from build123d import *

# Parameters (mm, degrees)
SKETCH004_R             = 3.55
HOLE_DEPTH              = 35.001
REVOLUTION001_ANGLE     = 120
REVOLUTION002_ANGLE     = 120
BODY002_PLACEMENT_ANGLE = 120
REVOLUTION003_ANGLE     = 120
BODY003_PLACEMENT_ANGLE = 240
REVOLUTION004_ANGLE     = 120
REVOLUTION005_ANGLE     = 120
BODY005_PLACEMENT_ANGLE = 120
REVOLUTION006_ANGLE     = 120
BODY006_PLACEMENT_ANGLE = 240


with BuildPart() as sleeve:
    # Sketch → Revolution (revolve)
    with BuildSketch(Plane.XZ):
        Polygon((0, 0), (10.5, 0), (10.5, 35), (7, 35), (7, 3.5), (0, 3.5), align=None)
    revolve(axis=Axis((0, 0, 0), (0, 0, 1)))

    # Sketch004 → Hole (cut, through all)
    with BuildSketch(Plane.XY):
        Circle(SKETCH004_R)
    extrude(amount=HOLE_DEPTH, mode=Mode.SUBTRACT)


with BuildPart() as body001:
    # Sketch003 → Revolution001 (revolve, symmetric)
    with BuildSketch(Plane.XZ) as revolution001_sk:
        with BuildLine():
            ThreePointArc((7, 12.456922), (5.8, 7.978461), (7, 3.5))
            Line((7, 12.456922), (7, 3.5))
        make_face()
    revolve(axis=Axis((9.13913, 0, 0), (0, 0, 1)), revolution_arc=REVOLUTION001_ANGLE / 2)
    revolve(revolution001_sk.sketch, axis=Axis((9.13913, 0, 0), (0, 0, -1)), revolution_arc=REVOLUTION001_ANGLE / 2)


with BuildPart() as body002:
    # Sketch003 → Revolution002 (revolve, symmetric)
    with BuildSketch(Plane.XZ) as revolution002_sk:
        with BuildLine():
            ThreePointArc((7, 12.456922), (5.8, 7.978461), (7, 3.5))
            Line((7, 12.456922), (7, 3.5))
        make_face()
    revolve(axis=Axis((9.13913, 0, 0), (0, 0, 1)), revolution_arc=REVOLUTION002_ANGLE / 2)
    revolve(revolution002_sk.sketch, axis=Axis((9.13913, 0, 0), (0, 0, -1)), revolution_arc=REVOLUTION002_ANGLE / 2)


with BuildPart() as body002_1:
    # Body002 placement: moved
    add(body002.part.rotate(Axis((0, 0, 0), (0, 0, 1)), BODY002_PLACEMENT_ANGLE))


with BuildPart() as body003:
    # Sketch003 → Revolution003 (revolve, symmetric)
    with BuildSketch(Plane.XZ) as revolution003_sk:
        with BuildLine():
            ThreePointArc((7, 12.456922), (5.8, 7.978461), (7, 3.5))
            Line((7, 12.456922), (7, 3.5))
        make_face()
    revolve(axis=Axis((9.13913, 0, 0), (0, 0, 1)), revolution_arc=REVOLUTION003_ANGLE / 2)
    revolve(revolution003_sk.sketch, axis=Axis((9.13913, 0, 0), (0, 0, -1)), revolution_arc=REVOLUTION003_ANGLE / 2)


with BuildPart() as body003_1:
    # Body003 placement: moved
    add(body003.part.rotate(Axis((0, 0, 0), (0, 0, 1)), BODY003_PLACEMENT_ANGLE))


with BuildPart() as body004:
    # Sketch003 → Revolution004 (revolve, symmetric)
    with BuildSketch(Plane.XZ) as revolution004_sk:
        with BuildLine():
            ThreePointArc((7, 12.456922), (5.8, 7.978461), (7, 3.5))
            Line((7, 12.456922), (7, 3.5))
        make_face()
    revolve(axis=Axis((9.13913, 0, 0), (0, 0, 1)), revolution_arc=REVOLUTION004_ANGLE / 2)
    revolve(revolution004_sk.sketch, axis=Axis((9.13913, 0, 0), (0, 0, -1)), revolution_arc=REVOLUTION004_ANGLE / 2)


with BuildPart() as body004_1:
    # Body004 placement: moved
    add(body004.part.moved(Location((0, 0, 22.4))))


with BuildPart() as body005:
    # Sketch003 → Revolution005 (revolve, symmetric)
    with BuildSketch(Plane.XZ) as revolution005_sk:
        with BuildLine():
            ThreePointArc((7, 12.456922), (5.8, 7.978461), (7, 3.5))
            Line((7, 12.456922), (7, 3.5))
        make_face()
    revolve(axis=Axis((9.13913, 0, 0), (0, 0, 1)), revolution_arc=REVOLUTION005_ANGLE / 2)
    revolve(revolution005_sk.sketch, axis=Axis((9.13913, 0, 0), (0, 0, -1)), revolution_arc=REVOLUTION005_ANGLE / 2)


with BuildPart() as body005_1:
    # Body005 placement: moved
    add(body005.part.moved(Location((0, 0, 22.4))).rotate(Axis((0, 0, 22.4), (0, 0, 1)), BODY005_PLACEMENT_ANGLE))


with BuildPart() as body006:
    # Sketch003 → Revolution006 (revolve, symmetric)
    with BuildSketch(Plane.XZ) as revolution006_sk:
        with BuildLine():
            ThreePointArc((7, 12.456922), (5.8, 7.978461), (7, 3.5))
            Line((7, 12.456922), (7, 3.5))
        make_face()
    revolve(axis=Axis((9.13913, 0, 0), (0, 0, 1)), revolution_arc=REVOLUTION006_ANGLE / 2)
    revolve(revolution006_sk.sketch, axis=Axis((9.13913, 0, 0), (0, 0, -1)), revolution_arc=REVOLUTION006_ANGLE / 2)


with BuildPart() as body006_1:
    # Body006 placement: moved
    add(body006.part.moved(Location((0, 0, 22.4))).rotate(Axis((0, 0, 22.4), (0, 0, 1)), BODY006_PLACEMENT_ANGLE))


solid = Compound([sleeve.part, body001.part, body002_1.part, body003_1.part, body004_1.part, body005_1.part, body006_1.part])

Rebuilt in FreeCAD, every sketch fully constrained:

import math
import FreeCAD as App
import Part
import Sketcher
from FreeCAD import Vector


def add_polygon(sketch, points):
    """Adds a closed chain of lines whose ends are joined by coincident constraints."""
    first, n = sketch.GeometryCount, len(points)
    for a, b in zip(points, points[1:] + points[:1]):
        sketch.addGeometry(Part.LineSegment(App.Vector(*a, 0), App.Vector(*b, 0)), False)
    for i in range(n):
        sketch.addConstraint(Sketcher.Constraint("Coincident", first + i, 2, first + (i + 1) % n, 1))

doc = App.newDocument("Part")
body = doc.addObject("PartDesign::Body", "Body")

sketch1 = body.newObject("Sketcher::SketchObject", "Sketch")
sketch1.AttachmentSupport = (doc.getObject("XZ_Plane"), [""])
sketch1.MapMode = "FlatFace"
add_polygon(sketch1, [(0, 0), (10.5, 0), (10.5, 35), (7, 35), (7, 3.5), (0, 3.5)])
sketch1.addConstraint([
    Sketcher.Constraint("Horizontal", 0),
    Sketcher.Constraint("Vertical", 1),
    Sketcher.Constraint("Horizontal", 2),
    Sketcher.Constraint("Vertical", 3),
    Sketcher.Constraint("Horizontal", 4),
    Sketcher.Constraint("Vertical", 5),
    Sketcher.Constraint("Coincident", 5, 2, -1, 1),
    Sketcher.Constraint("Equal", 2, 5),
    Sketcher.Constraint("DistanceX", 4, 2, 4, 1, 7.0),
    Sketcher.Constraint("DistanceY", 1, 1, 1, 2, 35.0),
    Sketcher.Constraint("DistanceX", 0, 1, 0, 2, 10.5),
])
revolution = body.newObject("PartDesign::Revolution", "Revolution")
revolution.Profile = sketch1
revolution.ReferenceAxis = (sketch1, ["V_Axis"])
revolution.Angle = 360

sketch2 = body.newObject("Sketcher::SketchObject", "Sketch001")
sketch2.AttachmentSupport = (doc.getObject("XY_Plane"), [""])
sketch2.MapMode = "FlatFace"
sketch2.addGeometry(Part.Circle(Vector(0, 0, 0), Vector(0, 0, 1), 3.55), False)
sketch2.addConstraint([
    Sketcher.Constraint("Coincident", 0, 3, -1, 1),
    Sketcher.Constraint("Diameter", 0, 7.1),
])
pocket1 = body.newObject("PartDesign::Pocket", "Pocket")
pocket1.Profile = sketch2
pocket1.Type = "ThroughAll"
pocket1.Reversed = True
body2 = doc.addObject("PartDesign::Body", "Body001")

sketch3 = body2.newObject("Sketcher::SketchObject", "Sketch002")
sketch3.AttachmentSupport = (doc.getObject("XZ_Plane001"), [""])
sketch3.MapMode = "FlatFace"
sketch3.addGeometry([
    Part.ArcOfCircle(Part.Circle(Vector(14.756922, 7.978461, 0), Vector(0, 0, 1), 8.956922), math.radians(150), math.radians(210)),
    Part.LineSegment(Vector(7, 3.5, 0), Vector(7, 12.456922, 0)),
], False)
sketch3.addGeometry(Part.LineSegment(Vector(9.13913, 3.5, 0), Vector(9.13913, 12.456922, 0)), True)
sketch3.addConstraint([
    Sketcher.Constraint("Coincident", 0, 1, 1, 2),
    Sketcher.Constraint("Coincident", 1, 1, 0, 2),
    Sketcher.Constraint("Vertical", 1),
    Sketcher.Constraint("Vertical", 2),
    Sketcher.Constraint("Horizontal", 1, 1, 2, 1),
    Sketcher.Constraint("Horizontal", 0, 1, 2, 2),
    Sketcher.Constraint("DistanceX", -1, 1, 0, 1, 7.0),
    Sketcher.Constraint("DistanceY", -1, 1, 1, 1, 3.5),
    Sketcher.Constraint("Radius", 0, 8.956922),
    Sketcher.Constraint("DistanceY", 1, 1, 1, 2, 8.956922),
    Sketcher.Constraint("DistanceX", -1, 1, 2, 1, 9.13913),
])
revolution2 = body2.newObject("PartDesign::Revolution", "Revolution001")
revolution2.Profile = sketch3
revolution2.ReferenceAxis = (sketch3, ["Axis0"])
revolution2.Angle = 60

sketch4 = body2.newObject("Sketcher::SketchObject", "Sketch003")
sketch4.AttachmentSupport = (doc.getObject("XZ_Plane001"), [""])
sketch4.MapMode = "FlatFace"
sketch4.addGeometry([
    Part.ArcOfCircle(Part.Circle(Vector(14.756922, 7.978461, 0), Vector(0, 0, 1), 8.956922), math.radians(150), math.radians(210)),
    Part.LineSegment(Vector(7, 3.5, 0), Vector(7, 12.456922, 0)),
], False)
sketch4.addGeometry(Part.LineSegment(Vector(9.13913, 12.456922, 0), Vector(9.13913, 3.5, 0)), True)
sketch4.addConstraint([
    Sketcher.Constraint("Coincident", 0, 1, 1, 2),
    Sketcher.Constraint("Coincident", 1, 1, 0, 2),
    Sketcher.Constraint("Vertical", 1),
    Sketcher.Constraint("Vertical", 2),
    Sketcher.Constraint("Horizontal", 0, 1, 2, 1),
    Sketcher.Constraint("Horizontal", 1, 1, 2, 2),
    Sketcher.Constraint("DistanceX", -1, 1, 0, 1, 7.0),
    Sketcher.Constraint("DistanceY", -1, 1, 1, 1, 3.5),
    Sketcher.Constraint("Radius", 0, 8.956922),
    Sketcher.Constraint("DistanceY", 1, 1, 1, 2, 8.956922),
    Sketcher.Constraint("DistanceX", -1, 1, 2, 1, 9.13913),
])
revolution3 = body2.newObject("PartDesign::Revolution", "Revolution002")
revolution3.Profile = sketch4
revolution3.ReferenceAxis = (sketch4, ["Axis0"])
revolution3.Angle = 60
body3 = doc.addObject("PartDesign::Body", "Body002")

sketch5 = body3.newObject("Sketcher::SketchObject", "Sketch004")
sketch5.AttachmentSupport = (doc.getObject("XZ_Plane002"), [""])
sketch5.MapMode = "FlatFace"
sketch5.addGeometry([
    Part.ArcOfCircle(Part.Circle(Vector(14.756922, 7.978461, 0), Vector(0, 0, 1), 8.956922), math.radians(150), math.radians(210)),
    Part.LineSegment(Vector(7, 3.5, 0), Vector(7, 12.456922, 0)),
], False)
sketch5.addGeometry(Part.LineSegment(Vector(9.13913, 3.5, 0), Vector(9.13913, 12.456922, 0)), True)
sketch5.addConstraint([
    Sketcher.Constraint("Coincident", 0, 1, 1, 2),
    Sketcher.Constraint("Coincident", 1, 1, 0, 2),
    Sketcher.Constraint("Vertical", 1),
    Sketcher.Constraint("Vertical", 2),
    Sketcher.Constraint("Horizontal", 1, 1, 2, 1),
    Sketcher.Constraint("Horizontal", 0, 1, 2, 2),
    Sketcher.Constraint("DistanceX", -1, 1, 0, 1, 7.0),
    Sketcher.Constraint("DistanceY", -1, 1, 1, 1, 3.5),
    Sketcher.Constraint("Radius", 0, 8.956922),
    Sketcher.Constraint("DistanceY", 1, 1, 1, 2, 8.956922),
    Sketcher.Constraint("DistanceX", -1, 1, 2, 1, 9.13913),
])
revolution4 = body3.newObject("PartDesign::Revolution", "Revolution003")
revolution4.Profile = sketch5
revolution4.ReferenceAxis = (sketch5, ["Axis0"])
revolution4.Angle = 60

sketch6 = body3.newObject("Sketcher::SketchObject", "Sketch005")
sketch6.AttachmentSupport = (doc.getObject("XZ_Plane002"), [""])
sketch6.MapMode = "FlatFace"
sketch6.addGeometry([
    Part.ArcOfCircle(Part.Circle(Vector(14.756922, 7.978461, 0), Vector(0, 0, 1), 8.956922), math.radians(150), math.radians(210)),
    Part.LineSegment(Vector(7, 3.5, 0), Vector(7, 12.456922, 0)),
], False)
sketch6.addGeometry(Part.LineSegment(Vector(9.13913, 12.456922, 0), Vector(9.13913, 3.5, 0)), True)
sketch6.addConstraint([
    Sketcher.Constraint("Coincident", 0, 1, 1, 2),
    Sketcher.Constraint("Coincident", 1, 1, 0, 2),
    Sketcher.Constraint("Vertical", 1),
    Sketcher.Constraint("Vertical", 2),
    Sketcher.Constraint("Horizontal", 0, 1, 2, 1),
    Sketcher.Constraint("Horizontal", 1, 1, 2, 2),
    Sketcher.Constraint("DistanceX", -1, 1, 0, 1, 7.0),
    Sketcher.Constraint("DistanceY", -1, 1, 1, 1, 3.5),
    Sketcher.Constraint("Radius", 0, 8.956922),
    Sketcher.Constraint("DistanceY", 1, 1, 1, 2, 8.956922),
    Sketcher.Constraint("DistanceX", -1, 1, 2, 1, 9.13913),
])
revolution5 = body3.newObject("PartDesign::Revolution", "Revolution004")
revolution5.Profile = sketch6
revolution5.ReferenceAxis = (sketch6, ["Axis0"])
revolution5.Angle = 60
body4 = doc.addObject("PartDesign::Body", "Body003")
doc.recompute()

body3.Placement = App.Placement(Vector(0, 0, 0), App.Rotation(Vector(0, 0, 1), 120))
boolean = body4.newObject("PartDesign::Boolean", "Boolean")
boolean.Type = "Fuse"
boolean.addObjects([body3])
body5 = doc.addObject("PartDesign::Body", "Body004")

sketch7 = body5.newObject("Sketcher::SketchObject", "Sketch006")
sketch7.AttachmentSupport = (doc.getObject("XZ_Plane004"), [""])
sketch7.MapMode = "FlatFace"
sketch7.addGeometry([
    Part.ArcOfCircle(Part.Circle(Vector(14.756922, 7.978461, 0), Vector(0, 0, 1), 8.956922), math.radians(150), math.radians(210)),
    Part.LineSegment(Vector(7, 3.5, 0), Vector(7, 12.456922, 0)),
], False)
sketch7.addGeometry(Part.LineSegment(Vector(9.13913, 3.5, 0), Vector(9.13913, 12.456922, 0)), True)
sketch7.addConstraint([
    Sketcher.Constraint("Coincident", 0, 1, 1, 2),
    Sketcher.Constraint("Coincident", 1, 1, 0, 2),
    Sketcher.Constraint("Vertical", 1),
    Sketcher.Constraint("Vertical", 2),
    Sketcher.Constraint("Horizontal", 1, 1, 2, 1),
    Sketcher.Constraint("Horizontal", 0, 1, 2, 2),
    Sketcher.Constraint("DistanceX", -1, 1, 0, 1, 7.0),
    Sketcher.Constraint("DistanceY", -1, 1, 1, 1, 3.5),
    Sketcher.Constraint("Radius", 0, 8.956922),
    Sketcher.Constraint("DistanceY", 1, 1, 1, 2, 8.956922),
    Sketcher.Constraint("DistanceX", -1, 1, 2, 1, 9.13913),
])
revolution6 = body5.newObject("PartDesign::Revolution", "Revolution005")
revolution6.Profile = sketch7
revolution6.ReferenceAxis = (sketch7, ["Axis0"])
revolution6.Angle = 60

sketch8 = body5.newObject("Sketcher::SketchObject", "Sketch007")
sketch8.AttachmentSupport = (doc.getObject("XZ_Plane004"), [""])
sketch8.MapMode = "FlatFace"
sketch8.addGeometry([
    Part.ArcOfCircle(Part.Circle(Vector(14.756922, 7.978461, 0), Vector(0, 0, 1), 8.956922), math.radians(150), math.radians(210)),
    Part.LineSegment(Vector(7, 3.5, 0), Vector(7, 12.456922, 0)),
], False)
sketch8.addGeometry(Part.LineSegment(Vector(9.13913, 12.456922, 0), Vector(9.13913, 3.5, 0)), True)
sketch8.addConstraint([
    Sketcher.Constraint("Coincident", 0, 1, 1, 2),
    Sketcher.Constraint("Coincident", 1, 1, 0, 2),
    Sketcher.Constraint("Vertical", 1),
    Sketcher.Constraint("Vertical", 2),
    Sketcher.Constraint("Horizontal", 0, 1, 2, 1),
    Sketcher.Constraint("Horizontal", 1, 1, 2, 2),
    Sketcher.Constraint("DistanceX", -1, 1, 0, 1, 7.0),
    Sketcher.Constraint("DistanceY", -1, 1, 1, 1, 3.5),
    Sketcher.Constraint("Radius", 0, 8.956922),
    Sketcher.Constraint("DistanceY", 1, 1, 1, 2, 8.956922),
    Sketcher.Constraint("DistanceX", -1, 1, 2, 1, 9.13913),
])
revolution7 = body5.newObject("PartDesign::Revolution", "Revolution006")
revolution7.Profile = sketch8
revolution7.ReferenceAxis = (sketch8, ["Axis0"])
revolution7.Angle = 60
body6 = doc.addObject("PartDesign::Body", "Body005")
doc.recompute()

body5.Placement = App.Placement(Vector(0, 0, 0), App.Rotation(Vector(0, 0, 1), 240))
boolean2 = body6.newObject("PartDesign::Boolean", "Boolean001")
boolean2.Type = "Fuse"
boolean2.addObjects([body5])
body7 = doc.addObject("PartDesign::Body", "Body006")

sketch9 = body7.newObject("Sketcher::SketchObject", "Sketch008")
sketch9.AttachmentSupport = (doc.getObject("XZ_Plane006"), [""])
sketch9.MapMode = "FlatFace"
sketch9.addGeometry([
    Part.ArcOfCircle(Part.Circle(Vector(14.756922, 7.978461, 0), Vector(0, 0, 1), 8.956922), math.radians(150), math.radians(210)),
    Part.LineSegment(Vector(7, 3.5, 0), Vector(7, 12.456922, 0)),
], False)
sketch9.addGeometry(Part.LineSegment(Vector(9.13913, 3.5, 0), Vector(9.13913, 12.456922, 0)), True)
sketch9.addConstraint([
    Sketcher.Constraint("Coincident", 0, 1, 1, 2),
    Sketcher.Constraint("Coincident", 1, 1, 0, 2),
    Sketcher.Constraint("Vertical", 1),
    Sketcher.Constraint("Vertical", 2),
    Sketcher.Constraint("Horizontal", 1, 1, 2, 1),
    Sketcher.Constraint("Horizontal", 0, 1, 2, 2),
    Sketcher.Constraint("DistanceX", -1, 1, 0, 1, 7.0),
    Sketcher.Constraint("DistanceY", -1, 1, 1, 1, 3.5),
    Sketcher.Constraint("Radius", 0, 8.956922),
    Sketcher.Constraint("DistanceY", 1, 1, 1, 2, 8.956922),
    Sketcher.Constraint("DistanceX", -1, 1, 2, 1, 9.13913),
])
revolution8 = body7.newObject("PartDesign::Revolution", "Revolution007")
revolution8.Profile = sketch9
revolution8.ReferenceAxis = (sketch9, ["Axis0"])
revolution8.Angle = 60

sketch10 = body7.newObject("Sketcher::SketchObject", "Sketch009")
sketch10.AttachmentSupport = (doc.getObject("XZ_Plane006"), [""])
sketch10.MapMode = "FlatFace"
sketch10.addGeometry([
    Part.ArcOfCircle(Part.Circle(Vector(14.756922, 7.978461, 0), Vector(0, 0, 1), 8.956922), math.radians(150), math.radians(210)),
    Part.LineSegment(Vector(7, 3.5, 0), Vector(7, 12.456922, 0)),
], False)
sketch10.addGeometry(Part.LineSegment(Vector(9.13913, 12.456922, 0), Vector(9.13913, 3.5, 0)), True)
sketch10.addConstraint([
    Sketcher.Constraint("Coincident", 0, 1, 1, 2),
    Sketcher.Constraint("Coincident", 1, 1, 0, 2),
    Sketcher.Constraint("Vertical", 1),
    Sketcher.Constraint("Vertical", 2),
    Sketcher.Constraint("Horizontal", 0, 1, 2, 1),
    Sketcher.Constraint("Horizontal", 1, 1, 2, 2),
    Sketcher.Constraint("DistanceX", -1, 1, 0, 1, 7.0),
    Sketcher.Constraint("DistanceY", -1, 1, 1, 1, 3.5),
    Sketcher.Constraint("Radius", 0, 8.956922),
    Sketcher.Constraint("DistanceY", 1, 1, 1, 2, 8.956922),
    Sketcher.Constraint("DistanceX", -1, 1, 2, 1, 9.13913),
])
revolution9 = body7.newObject("PartDesign::Revolution", "Revolution008")
revolution9.Profile = sketch10
revolution9.ReferenceAxis = (sketch10, ["Axis0"])
revolution9.Angle = 60
body8 = doc.addObject("PartDesign::Body", "Body007")
doc.recompute()

body7.Placement = App.Placement(Vector(0, 0, 22.4), App.Rotation(Vector(0, 0, 1), 0))
boolean3 = body8.newObject("PartDesign::Boolean", "Boolean002")
boolean3.Type = "Fuse"
boolean3.addObjects([body7])
body9 = doc.addObject("PartDesign::Body", "Body008")

sketch11 = body9.newObject("Sketcher::SketchObject", "Sketch010")
sketch11.AttachmentSupport = (doc.getObject("XZ_Plane008"), [""])
sketch11.MapMode = "FlatFace"
sketch11.addGeometry([
    Part.ArcOfCircle(Part.Circle(Vector(14.756922, 7.978461, 0), Vector(0, 0, 1), 8.956922), math.radians(150), math.radians(210)),
    Part.LineSegment(Vector(7, 3.5, 0), Vector(7, 12.456922, 0)),
], False)
sketch11.addGeometry(Part.LineSegment(Vector(9.13913, 3.5, 0), Vector(9.13913, 12.456922, 0)), True)
sketch11.addConstraint([
    Sketcher.Constraint("Coincident", 0, 1, 1, 2),
    Sketcher.Constraint("Coincident", 1, 1, 0, 2),
    Sketcher.Constraint("Vertical", 1),
    Sketcher.Constraint("Vertical", 2),
    Sketcher.Constraint("Horizontal", 1, 1, 2, 1),
    Sketcher.Constraint("Horizontal", 0, 1, 2, 2),
    Sketcher.Constraint("DistanceX", -1, 1, 0, 1, 7.0),
    Sketcher.Constraint("DistanceY", -1, 1, 1, 1, 3.5),
    Sketcher.Constraint("Radius", 0, 8.956922),
    Sketcher.Constraint("DistanceY", 1, 1, 1, 2, 8.956922),
    Sketcher.Constraint("DistanceX", -1, 1, 2, 1, 9.13913),
])
revolution10 = body9.newObject("PartDesign::Revolution", "Revolution009")
revolution10.Profile = sketch11
revolution10.ReferenceAxis = (sketch11, ["Axis0"])
revolution10.Angle = 60

sketch12 = body9.newObject("Sketcher::SketchObject", "Sketch011")
sketch12.AttachmentSupport = (doc.getObject("XZ_Plane008"), [""])
sketch12.MapMode = "FlatFace"
sketch12.addGeometry([
    Part.ArcOfCircle(Part.Circle(Vector(14.756922, 7.978461, 0), Vector(0, 0, 1), 8.956922), math.radians(150), math.radians(210)),
    Part.LineSegment(Vector(7, 3.5, 0), Vector(7, 12.456922, 0)),
], False)
sketch12.addGeometry(Part.LineSegment(Vector(9.13913, 12.456922, 0), Vector(9.13913, 3.5, 0)), True)
sketch12.addConstraint([
    Sketcher.Constraint("Coincident", 0, 1, 1, 2),
    Sketcher.Constraint("Coincident", 1, 1, 0, 2),
    Sketcher.Constraint("Vertical", 1),
    Sketcher.Constraint("Vertical", 2),
    Sketcher.Constraint("Horizontal", 0, 1, 2, 1),
    Sketcher.Constraint("Horizontal", 1, 1, 2, 2),
    Sketcher.Constraint("DistanceX", -1, 1, 0, 1, 7.0),
    Sketcher.Constraint("DistanceY", -1, 1, 1, 1, 3.5),
    Sketcher.Constraint("Radius", 0, 8.956922),
    Sketcher.Constraint("DistanceY", 1, 1, 1, 2, 8.956922),
    Sketcher.Constraint("DistanceX", -1, 1, 2, 1, 9.13913),
])
revolution11 = body9.newObject("PartDesign::Revolution", "Revolution010")
revolution11.Profile = sketch12
revolution11.ReferenceAxis = (sketch12, ["Axis0"])
revolution11.Angle = 60
body10 = doc.addObject("PartDesign::Body", "Body009")
doc.recompute()

body9.Placement = App.Placement(Vector(0, 0, 22.4), App.Rotation(Vector(0, 0, 1), 120))
boolean4 = body10.newObject("PartDesign::Boolean", "Boolean003")
boolean4.Type = "Fuse"
boolean4.addObjects([body9])
body11 = doc.addObject("PartDesign::Body", "Body010")

sketch13 = body11.newObject("Sketcher::SketchObject", "Sketch012")
sketch13.AttachmentSupport = (doc.getObject("XZ_Plane010"), [""])
sketch13.MapMode = "FlatFace"
sketch13.addGeometry([
    Part.ArcOfCircle(Part.Circle(Vector(14.756922, 7.978461, 0), Vector(0, 0, 1), 8.956922), math.radians(150), math.radians(210)),
    Part.LineSegment(Vector(7, 3.5, 0), Vector(7, 12.456922, 0)),
], False)
sketch13.addGeometry(Part.LineSegment(Vector(9.13913, 3.5, 0), Vector(9.13913, 12.456922, 0)), True)
sketch13.addConstraint([
    Sketcher.Constraint("Coincident", 0, 1, 1, 2),
    Sketcher.Constraint("Coincident", 1, 1, 0, 2),
    Sketcher.Constraint("Vertical", 1),
    Sketcher.Constraint("Vertical", 2),
    Sketcher.Constraint("Horizontal", 1, 1, 2, 1),
    Sketcher.Constraint("Horizontal", 0, 1, 2, 2),
    Sketcher.Constraint("DistanceX", -1, 1, 0, 1, 7.0),
    Sketcher.Constraint("DistanceY", -1, 1, 1, 1, 3.5),
    Sketcher.Constraint("Radius", 0, 8.956922),
    Sketcher.Constraint("DistanceY", 1, 1, 1, 2, 8.956922),
    Sketcher.Constraint("DistanceX", -1, 1, 2, 1, 9.13913),
])
revolution12 = body11.newObject("PartDesign::Revolution", "Revolution011")
revolution12.Profile = sketch13
revolution12.ReferenceAxis = (sketch13, ["Axis0"])
revolution12.Angle = 60

sketch14 = body11.newObject("Sketcher::SketchObject", "Sketch013")
sketch14.AttachmentSupport = (doc.getObject("XZ_Plane010"), [""])
sketch14.MapMode = "FlatFace"
sketch14.addGeometry([
    Part.ArcOfCircle(Part.Circle(Vector(14.756922, 7.978461, 0), Vector(0, 0, 1), 8.956922), math.radians(150), math.radians(210)),
    Part.LineSegment(Vector(7, 3.5, 0), Vector(7, 12.456922, 0)),
], False)
sketch14.addGeometry(Part.LineSegment(Vector(9.13913, 12.456922, 0), Vector(9.13913, 3.5, 0)), True)
sketch14.addConstraint([
    Sketcher.Constraint("Coincident", 0, 1, 1, 2),
    Sketcher.Constraint("Coincident", 1, 1, 0, 2),
    Sketcher.Constraint("Vertical", 1),
    Sketcher.Constraint("Vertical", 2),
    Sketcher.Constraint("Horizontal", 0, 1, 2, 1),
    Sketcher.Constraint("Horizontal", 1, 1, 2, 2),
    Sketcher.Constraint("DistanceX", -1, 1, 0, 1, 7.0),
    Sketcher.Constraint("DistanceY", -1, 1, 1, 1, 3.5),
    Sketcher.Constraint("Radius", 0, 8.956922),
    Sketcher.Constraint("DistanceY", 1, 1, 1, 2, 8.956922),
    Sketcher.Constraint("DistanceX", -1, 1, 2, 1, 9.13913),
])
revolution13 = body11.newObject("PartDesign::Revolution", "Revolution012")
revolution13.Profile = sketch14
revolution13.ReferenceAxis = (sketch14, ["Axis0"])
revolution13.Angle = 60
body12 = doc.addObject("PartDesign::Body", "Body011")
doc.recompute()

body11.Placement = App.Placement(Vector(0, 0, 22.4), App.Rotation(Vector(0, 0, 1), 240))
boolean5 = body12.newObject("PartDesign::Boolean", "Boolean004")
boolean5.Type = "Fuse"
boolean5.addObjects([body11])

doc.recompute()
